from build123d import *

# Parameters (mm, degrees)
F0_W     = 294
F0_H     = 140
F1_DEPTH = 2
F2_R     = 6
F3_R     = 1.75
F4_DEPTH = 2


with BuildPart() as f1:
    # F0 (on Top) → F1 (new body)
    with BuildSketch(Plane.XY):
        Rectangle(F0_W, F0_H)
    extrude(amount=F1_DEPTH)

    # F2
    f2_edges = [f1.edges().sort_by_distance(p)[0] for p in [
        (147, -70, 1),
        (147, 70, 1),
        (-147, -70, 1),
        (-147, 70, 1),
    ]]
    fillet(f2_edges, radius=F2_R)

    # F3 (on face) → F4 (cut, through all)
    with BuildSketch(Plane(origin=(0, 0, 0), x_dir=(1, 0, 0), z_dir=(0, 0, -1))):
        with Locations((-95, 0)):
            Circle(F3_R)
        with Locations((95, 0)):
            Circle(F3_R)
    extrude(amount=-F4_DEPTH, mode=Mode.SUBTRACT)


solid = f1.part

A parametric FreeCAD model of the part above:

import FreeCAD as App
import Part
import Sketcher
from FreeCAD import Vector


def edges_at(feature, points):
    """Names of the edges that pass closest to the given points."""
    edges = feature.Shape.Edges
    near = lambda p: min(range(len(edges)), key=lambda i: edges[i].distToShape(Part.Vertex(*p))[0])
    return sorted({f"Edge{near(p) + 1}" for p in points})

doc = App.newDocument("Part")
body = doc.addObject("PartDesign::Body", "Body")

sketch1 = doc.addObject("Sketcher::SketchObject", "Sketch")
body.addObject(sketch1)
sketch1.AttachmentSupport = (doc.XY_Plane, [""])
sketch1.MapMode = "FlatFace"
sketch1.addGeometry(Part.LineSegment(Vector(-147, 70, 0), Vector(-147, -70, 0)), False)
sketch1.addGeometry(Part.LineSegment(Vector(-147, -70, 0), Vector(147, -70, 0)), False)
sketch1.addGeometry(Part.LineSegment(Vector(147, -70, 0), Vector(147, 70, 0)), False)
sketch1.addGeometry(Part.LineSegment(Vector(147, 70, 0), Vector(-147, 70, 0)), False)
sketch1.addConstraint(Sketcher.Constraint("Coincident", 0, 2, 1, 1))
sketch1.addConstraint(Sketcher.Constraint("Coincident", 1, 2, 2, 1))
sketch1.addConstraint(Sketcher.Constraint("Coincident", 2, 2, 3, 1))
sketch1.addConstraint(Sketcher.Constraint("Coincident", 3, 2, 0, 1))
sketch1.addConstraint(Sketcher.Constraint("Vertical", 0))
sketch1.addConstraint(Sketcher.Constraint("Horizontal", 1))
sketch1.addConstraint(Sketcher.Constraint("Vertical", 2))
sketch1.addConstraint(Sketcher.Constraint("Horizontal", 3))
sketch1.addConstraint(Sketcher.Constraint("Symmetric", 0, 2, 2, 2, -1, 1))
sketch1.addConstraint(Sketcher.Constraint("DistanceX", 1, 1, 1, 2, 294.0))
sketch1.addConstraint(Sketcher.Constraint("DistanceY", 0, 2, 0, 1, 140.0))
pad1 = doc.addObject("PartDesign::Pad", "Pad")
body.addObject(pad1)
pad1.Profile = sketch1
pad1.Length = 2
doc.recompute()

fillet = doc.addObject("PartDesign::Fillet", "Fillet")
body.addObject(fillet)
fillet.Base = (pad1, edges_at(pad1, [
    (147, -70, 1),
    (147, 70, 1),
    (-147, -70, 1),
    (-147, 70, 1),
]))
fillet.Radius = 6

sketch2 = doc.addObject("Sketcher::SketchObject", "Sketch001")
body.addObject(sketch2)
sketch2.AttachmentSupport = (doc.XY_Plane, [""])
sketch2.MapMode = "FlatFace"
sketch2.addGeometry(Part.Circle(Vector(-95, 0, 0), Vector(0, 0, 1), 1.8), False)
sketch2.addGeometry(Part.Circle(Vector(95, 0, 0), Vector(0, 0, 1), 1.8), False)
sketch2.addConstraint(Sketcher.Constraint("Equal", 0, 1))
sketch2.addConstraint(Sketcher.Constraint("Symmetric", 0, 3, 1, 3, -1, 1))
sketch2.addConstraint(Sketcher.Constraint("PointOnObject", 0, 3, -1))
sketch2.addConstraint(Sketcher.Constraint("Diameter", 0, 3.5))
sketch2.addConstraint(Sketcher.Constraint("DistanceX", 0, 3, -1, 1, 95.0))
pocket1 = doc.addObject("PartDesign::Pocket", "Pocket")
body.addObject(pocket1)
pocket1.Profile = sketch2
pocket1.Type = "ThroughAll"
pocket1.Reversed = True

doc.recompute()
